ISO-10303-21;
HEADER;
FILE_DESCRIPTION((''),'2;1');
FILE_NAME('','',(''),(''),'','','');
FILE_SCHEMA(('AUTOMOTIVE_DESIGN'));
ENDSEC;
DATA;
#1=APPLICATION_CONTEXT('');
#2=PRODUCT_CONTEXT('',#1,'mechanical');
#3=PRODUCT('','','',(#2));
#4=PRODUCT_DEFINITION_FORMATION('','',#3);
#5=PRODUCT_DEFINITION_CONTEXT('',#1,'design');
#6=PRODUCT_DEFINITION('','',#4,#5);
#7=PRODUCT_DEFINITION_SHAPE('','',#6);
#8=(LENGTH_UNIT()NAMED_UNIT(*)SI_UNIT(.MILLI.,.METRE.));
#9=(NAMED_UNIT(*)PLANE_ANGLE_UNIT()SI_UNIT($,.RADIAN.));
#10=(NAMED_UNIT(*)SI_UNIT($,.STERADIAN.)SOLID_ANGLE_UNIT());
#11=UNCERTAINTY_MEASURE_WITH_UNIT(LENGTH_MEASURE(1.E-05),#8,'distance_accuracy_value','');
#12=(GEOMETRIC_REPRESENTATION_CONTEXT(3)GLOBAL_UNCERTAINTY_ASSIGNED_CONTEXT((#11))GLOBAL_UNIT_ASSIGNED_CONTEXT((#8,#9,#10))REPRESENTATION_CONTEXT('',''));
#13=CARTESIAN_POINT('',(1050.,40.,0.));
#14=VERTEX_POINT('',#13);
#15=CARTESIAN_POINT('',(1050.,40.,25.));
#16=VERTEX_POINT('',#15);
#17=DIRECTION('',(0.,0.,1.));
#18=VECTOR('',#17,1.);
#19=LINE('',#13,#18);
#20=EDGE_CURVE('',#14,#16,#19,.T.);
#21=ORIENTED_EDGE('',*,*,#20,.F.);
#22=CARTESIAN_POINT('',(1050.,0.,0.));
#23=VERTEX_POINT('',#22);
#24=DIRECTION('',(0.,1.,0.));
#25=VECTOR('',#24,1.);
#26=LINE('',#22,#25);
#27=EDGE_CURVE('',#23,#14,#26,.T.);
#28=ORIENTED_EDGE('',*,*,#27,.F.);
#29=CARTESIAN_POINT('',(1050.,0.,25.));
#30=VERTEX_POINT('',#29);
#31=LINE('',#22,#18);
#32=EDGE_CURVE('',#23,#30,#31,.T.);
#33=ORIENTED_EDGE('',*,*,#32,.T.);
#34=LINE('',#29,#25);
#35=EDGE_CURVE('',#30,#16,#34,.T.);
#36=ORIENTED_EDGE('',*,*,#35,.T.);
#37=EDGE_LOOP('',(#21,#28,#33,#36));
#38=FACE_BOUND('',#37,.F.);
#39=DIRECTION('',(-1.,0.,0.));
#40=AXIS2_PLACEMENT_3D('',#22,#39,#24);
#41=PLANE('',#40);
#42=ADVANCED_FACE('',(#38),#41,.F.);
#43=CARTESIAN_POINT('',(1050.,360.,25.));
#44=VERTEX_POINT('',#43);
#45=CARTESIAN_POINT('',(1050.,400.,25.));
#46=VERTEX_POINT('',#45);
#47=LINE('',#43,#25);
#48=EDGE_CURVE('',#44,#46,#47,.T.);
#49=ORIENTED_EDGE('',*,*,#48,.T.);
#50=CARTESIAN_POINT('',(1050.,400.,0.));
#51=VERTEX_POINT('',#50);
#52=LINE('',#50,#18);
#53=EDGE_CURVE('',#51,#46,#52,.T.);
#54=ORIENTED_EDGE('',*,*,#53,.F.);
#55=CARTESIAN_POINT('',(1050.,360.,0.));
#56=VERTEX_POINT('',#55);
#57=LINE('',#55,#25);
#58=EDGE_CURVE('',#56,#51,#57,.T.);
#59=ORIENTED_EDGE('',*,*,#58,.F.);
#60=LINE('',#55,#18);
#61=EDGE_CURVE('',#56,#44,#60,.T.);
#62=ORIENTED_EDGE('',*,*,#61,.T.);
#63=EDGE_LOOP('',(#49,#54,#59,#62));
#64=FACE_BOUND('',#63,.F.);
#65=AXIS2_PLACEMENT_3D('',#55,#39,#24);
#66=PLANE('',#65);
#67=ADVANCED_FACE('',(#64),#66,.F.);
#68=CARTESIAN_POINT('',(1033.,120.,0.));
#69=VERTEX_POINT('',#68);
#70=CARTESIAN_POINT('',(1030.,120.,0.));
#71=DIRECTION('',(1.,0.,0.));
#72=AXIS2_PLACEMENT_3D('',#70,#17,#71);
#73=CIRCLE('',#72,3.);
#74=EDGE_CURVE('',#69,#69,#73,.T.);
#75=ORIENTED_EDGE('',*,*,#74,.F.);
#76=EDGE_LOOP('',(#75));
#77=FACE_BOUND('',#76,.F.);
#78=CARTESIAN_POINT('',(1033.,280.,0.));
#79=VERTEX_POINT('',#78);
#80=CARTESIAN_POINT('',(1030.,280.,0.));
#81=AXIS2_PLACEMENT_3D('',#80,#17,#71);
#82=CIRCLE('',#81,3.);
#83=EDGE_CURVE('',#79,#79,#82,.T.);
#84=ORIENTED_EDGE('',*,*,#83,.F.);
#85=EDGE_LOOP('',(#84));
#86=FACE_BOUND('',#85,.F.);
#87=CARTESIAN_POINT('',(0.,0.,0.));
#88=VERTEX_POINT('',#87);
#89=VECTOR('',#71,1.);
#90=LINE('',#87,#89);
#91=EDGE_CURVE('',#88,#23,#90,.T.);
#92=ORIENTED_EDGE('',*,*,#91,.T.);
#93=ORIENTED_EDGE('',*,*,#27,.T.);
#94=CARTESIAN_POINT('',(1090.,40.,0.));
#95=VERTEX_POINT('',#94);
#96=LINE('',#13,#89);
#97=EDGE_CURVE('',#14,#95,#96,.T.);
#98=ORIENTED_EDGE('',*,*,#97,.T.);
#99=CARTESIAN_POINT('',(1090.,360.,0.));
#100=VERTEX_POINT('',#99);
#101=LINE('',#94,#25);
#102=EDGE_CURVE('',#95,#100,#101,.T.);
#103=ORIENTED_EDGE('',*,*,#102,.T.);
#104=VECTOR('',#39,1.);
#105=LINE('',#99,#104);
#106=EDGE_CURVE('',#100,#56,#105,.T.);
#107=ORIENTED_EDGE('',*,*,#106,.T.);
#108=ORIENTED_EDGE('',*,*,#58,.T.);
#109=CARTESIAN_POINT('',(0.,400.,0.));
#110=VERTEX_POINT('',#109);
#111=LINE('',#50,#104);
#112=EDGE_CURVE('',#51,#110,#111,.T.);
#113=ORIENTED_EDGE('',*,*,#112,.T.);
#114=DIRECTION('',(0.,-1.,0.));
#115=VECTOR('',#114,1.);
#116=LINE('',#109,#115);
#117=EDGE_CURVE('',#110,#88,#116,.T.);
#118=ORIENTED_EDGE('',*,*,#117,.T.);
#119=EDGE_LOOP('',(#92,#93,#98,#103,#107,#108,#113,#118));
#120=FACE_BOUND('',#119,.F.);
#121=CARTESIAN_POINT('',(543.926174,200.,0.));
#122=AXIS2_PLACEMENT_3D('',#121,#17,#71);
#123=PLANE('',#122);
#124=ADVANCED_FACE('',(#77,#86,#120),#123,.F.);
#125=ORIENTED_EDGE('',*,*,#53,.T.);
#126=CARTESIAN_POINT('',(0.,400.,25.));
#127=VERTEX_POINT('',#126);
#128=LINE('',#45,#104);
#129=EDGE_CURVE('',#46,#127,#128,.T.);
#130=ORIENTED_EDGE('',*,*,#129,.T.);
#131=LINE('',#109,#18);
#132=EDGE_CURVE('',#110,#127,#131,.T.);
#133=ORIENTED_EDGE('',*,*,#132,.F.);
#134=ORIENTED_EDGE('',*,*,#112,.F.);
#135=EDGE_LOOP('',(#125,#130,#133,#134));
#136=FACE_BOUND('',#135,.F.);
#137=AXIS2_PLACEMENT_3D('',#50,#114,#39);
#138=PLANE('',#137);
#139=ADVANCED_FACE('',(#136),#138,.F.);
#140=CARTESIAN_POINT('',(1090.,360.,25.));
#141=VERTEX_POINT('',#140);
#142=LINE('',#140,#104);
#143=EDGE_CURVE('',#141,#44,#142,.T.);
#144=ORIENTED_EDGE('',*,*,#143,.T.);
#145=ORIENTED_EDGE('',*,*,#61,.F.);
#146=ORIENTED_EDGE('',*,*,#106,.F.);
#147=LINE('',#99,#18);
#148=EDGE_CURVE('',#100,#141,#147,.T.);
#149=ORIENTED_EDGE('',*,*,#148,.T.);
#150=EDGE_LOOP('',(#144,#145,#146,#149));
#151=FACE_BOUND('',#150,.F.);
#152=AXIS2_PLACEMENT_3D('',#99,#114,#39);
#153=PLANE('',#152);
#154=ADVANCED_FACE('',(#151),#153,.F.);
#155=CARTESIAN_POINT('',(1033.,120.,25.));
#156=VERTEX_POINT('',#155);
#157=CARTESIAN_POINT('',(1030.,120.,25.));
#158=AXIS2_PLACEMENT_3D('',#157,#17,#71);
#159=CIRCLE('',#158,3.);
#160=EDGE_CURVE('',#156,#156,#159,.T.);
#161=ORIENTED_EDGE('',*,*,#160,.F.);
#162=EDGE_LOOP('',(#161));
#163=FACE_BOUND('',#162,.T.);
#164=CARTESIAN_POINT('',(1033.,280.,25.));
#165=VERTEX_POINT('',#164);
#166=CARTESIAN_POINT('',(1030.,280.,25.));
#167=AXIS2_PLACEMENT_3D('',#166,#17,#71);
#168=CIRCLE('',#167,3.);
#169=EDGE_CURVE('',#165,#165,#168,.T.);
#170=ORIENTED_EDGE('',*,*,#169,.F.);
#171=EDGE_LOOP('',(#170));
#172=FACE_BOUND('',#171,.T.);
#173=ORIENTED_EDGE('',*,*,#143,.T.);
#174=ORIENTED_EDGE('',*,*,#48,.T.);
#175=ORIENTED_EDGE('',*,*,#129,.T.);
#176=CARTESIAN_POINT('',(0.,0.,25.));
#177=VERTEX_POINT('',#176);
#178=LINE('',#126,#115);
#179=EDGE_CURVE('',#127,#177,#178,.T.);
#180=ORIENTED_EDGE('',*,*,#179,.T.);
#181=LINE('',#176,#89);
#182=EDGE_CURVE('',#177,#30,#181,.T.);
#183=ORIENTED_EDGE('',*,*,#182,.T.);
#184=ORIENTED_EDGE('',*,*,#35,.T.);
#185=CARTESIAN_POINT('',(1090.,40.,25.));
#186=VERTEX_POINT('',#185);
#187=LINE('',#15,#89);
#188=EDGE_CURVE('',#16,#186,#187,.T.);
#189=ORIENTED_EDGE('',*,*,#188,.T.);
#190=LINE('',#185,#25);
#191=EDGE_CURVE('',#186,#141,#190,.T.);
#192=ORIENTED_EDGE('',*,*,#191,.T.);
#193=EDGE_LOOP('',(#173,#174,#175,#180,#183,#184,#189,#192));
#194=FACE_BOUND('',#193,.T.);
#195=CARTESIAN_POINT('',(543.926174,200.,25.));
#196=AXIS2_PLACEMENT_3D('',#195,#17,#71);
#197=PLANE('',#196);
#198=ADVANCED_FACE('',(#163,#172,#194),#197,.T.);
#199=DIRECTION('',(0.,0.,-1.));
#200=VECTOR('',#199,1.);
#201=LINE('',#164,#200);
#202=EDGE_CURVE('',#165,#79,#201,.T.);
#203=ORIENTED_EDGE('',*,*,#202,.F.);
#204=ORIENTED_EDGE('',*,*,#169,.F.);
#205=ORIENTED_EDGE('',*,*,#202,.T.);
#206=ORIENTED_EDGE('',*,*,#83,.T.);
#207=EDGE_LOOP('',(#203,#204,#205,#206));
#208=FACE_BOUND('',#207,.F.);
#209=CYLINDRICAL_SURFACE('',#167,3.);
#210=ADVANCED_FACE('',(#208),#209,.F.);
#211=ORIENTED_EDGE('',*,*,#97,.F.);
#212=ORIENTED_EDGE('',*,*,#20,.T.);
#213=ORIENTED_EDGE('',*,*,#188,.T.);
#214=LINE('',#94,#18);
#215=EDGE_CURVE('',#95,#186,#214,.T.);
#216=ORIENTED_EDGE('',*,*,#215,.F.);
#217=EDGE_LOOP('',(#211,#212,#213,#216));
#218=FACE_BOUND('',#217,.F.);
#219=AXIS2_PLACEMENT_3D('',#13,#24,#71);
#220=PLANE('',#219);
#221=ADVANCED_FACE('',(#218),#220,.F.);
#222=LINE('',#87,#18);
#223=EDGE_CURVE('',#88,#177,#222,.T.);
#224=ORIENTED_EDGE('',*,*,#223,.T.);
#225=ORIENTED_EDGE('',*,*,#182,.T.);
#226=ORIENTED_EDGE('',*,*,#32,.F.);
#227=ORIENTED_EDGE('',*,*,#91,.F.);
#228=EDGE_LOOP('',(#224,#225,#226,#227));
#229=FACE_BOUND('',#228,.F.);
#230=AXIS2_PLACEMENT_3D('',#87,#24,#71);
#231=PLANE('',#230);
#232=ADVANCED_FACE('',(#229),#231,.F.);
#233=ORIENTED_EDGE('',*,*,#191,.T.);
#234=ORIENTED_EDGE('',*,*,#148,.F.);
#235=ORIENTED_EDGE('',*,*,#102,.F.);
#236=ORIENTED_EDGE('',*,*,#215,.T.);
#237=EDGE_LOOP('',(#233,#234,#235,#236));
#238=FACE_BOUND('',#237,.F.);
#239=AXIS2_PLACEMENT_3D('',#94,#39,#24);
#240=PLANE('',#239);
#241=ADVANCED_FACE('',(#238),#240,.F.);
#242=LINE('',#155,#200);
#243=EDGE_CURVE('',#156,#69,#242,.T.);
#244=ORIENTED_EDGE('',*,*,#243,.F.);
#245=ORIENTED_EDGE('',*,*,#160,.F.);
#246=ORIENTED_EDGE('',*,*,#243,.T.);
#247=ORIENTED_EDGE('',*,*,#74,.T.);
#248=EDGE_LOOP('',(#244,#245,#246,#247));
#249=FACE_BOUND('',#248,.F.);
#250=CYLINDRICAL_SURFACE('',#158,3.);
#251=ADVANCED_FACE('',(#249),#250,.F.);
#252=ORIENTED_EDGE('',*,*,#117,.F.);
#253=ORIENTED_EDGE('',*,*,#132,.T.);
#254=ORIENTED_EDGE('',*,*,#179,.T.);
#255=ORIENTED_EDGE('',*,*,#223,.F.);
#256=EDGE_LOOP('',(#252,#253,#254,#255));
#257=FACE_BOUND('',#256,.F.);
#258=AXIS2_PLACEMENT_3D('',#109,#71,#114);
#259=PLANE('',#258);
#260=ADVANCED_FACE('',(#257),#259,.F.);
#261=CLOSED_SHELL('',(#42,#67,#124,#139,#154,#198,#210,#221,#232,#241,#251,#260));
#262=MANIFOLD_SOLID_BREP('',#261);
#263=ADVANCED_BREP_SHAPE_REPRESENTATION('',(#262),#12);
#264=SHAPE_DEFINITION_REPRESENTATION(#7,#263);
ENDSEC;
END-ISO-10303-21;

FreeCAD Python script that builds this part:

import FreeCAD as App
import Part
import Sketcher
from FreeCAD import Vector
Q = App.Units.Quantity

doc = App.newDocument("Part")
body = doc.addObject("PartDesign::Body", "Body")

# Sketch on XY plane
sketch1 = body.newObject("Sketcher::SketchObject", "Sketch")
sketch1.AttachmentSupport = (doc.getObject("XY_Plane"), [""])
sketch1.MapMode = "FlatFace"
sketch1.addGeometry(Part.LineSegment(Vector(0, 400, 0), Vector(0, 0, 0)), False)
sketch1.addGeometry(Part.LineSegment(Vector(0, 0, 0), Vector(1050, 0, 0)), False)
sketch1.addGeometry(Part.LineSegment(Vector(1050, 0, 0), Vector(1050, 40, 0)), False)
sketch1.addGeometry(Part.LineSegment(Vector(1050, 40, 0), Vector(1090, 40, 0)), False)
sketch1.addGeometry(Part.LineSegment(Vector(1090, 40, 0), Vector(1090, 360, 0)), False)
sketch1.addGeometry(Part.LineSegment(Vector(1090, 360, 0), Vector(1050, 360, 0)), False)
sketch1.addGeometry(Part.LineSegment(Vector(1050, 360, 0), Vector(1050, 400, 0)), False)
sketch1.addGeometry(Part.LineSegment(Vector(1050, 400, 0), Vector(0, 400, 0)), False)
sketch1.addConstraint(Sketcher.Constraint("Coincident", 0, 2, 1, 1))
sketch1.addConstraint(Sketcher.Constraint("Coincident", 1, 2, 2, 1))
sketch1.addConstraint(Sketcher.Constraint("Coincident", 2, 2, 3, 1))
sketch1.addConstraint(Sketcher.Constraint("Coincident", 3, 2, 4, 1))
sketch1.addConstraint(Sketcher.Constraint("Coincident", 4, 2, 5, 1))
sketch1.addConstraint(Sketcher.Constraint("Coincident", 5, 2, 6, 1))
sketch1.addConstraint(Sketcher.Constraint("Coincident", 6, 2, 7, 1))
sketch1.addConstraint(Sketcher.Constraint("Coincident", 7, 2, 0, 1))
sketch1.addConstraint(Sketcher.Constraint("Vertical", 0))
sketch1.addConstraint(Sketcher.Constraint("Horizontal", 1))
sketch1.addConstraint(Sketcher.Constraint("Vertical", 2))
sketch1.addConstraint(Sketcher.Constraint("Horizontal", 3))
sketch1.addConstraint(Sketcher.Constraint("Vertical", 4))
sketch1.addConstraint(Sketcher.Constraint("Horizontal", 5))
sketch1.addConstraint(Sketcher.Constraint("Vertical", 6))
sketch1.addConstraint(Sketcher.Constraint("Horizontal", 7))
sketch1.addConstraint(Sketcher.Constraint("Coincident", 0, 2, -1, 1))
sketch1.addConstraint(Sketcher.Constraint("Vertical", 2, 2, 5, 2))
sketch1.addConstraint(Sketcher.Constraint("Equal", 5, 2))
sketch1.addConstraint(Sketcher.Constraint("Equal", 2, 6))
sketch1.addConstraint(Sketcher.Constraint("DistanceX", 1, 1, 1, 2, Q("1050 mm")))
sketch1.addConstraint(Sketcher.Constraint("DistanceX", 3, 1, 3, 2, Q("40 mm")))
sketch1.addConstraint(Sketcher.Constraint("DistanceY", 0, 2, 0, 1, Q("400 mm")))
pad1 = body.newObject("PartDesign::Pad", "Pad")
pad1.Profile = sketch1
pad1.Length = 25

# Sketch on XY plane
sketch2 = body.newObject("Sketcher::SketchObject", "Sketch001")
sketch2.AttachmentSupport = (doc.getObject("XY_Plane"), [""])
sketch2.MapMode = "FlatFace"
sketch2.AttachmentOffset = App.Placement(Vector(0, 0, 25), App.Rotation())
sketch2.addGeometry(Part.Circle(Vector(1030, 120, 0), Vector(0, 0, 1), 3), False)
sketch2.addGeometry(Part.Circle(Vector(1030, 280, 0), Vector(0, 0, 1), 3), False)
sketch2.addConstraint(Sketcher.Constraint("Equal", 0, 1))
sketch2.addConstraint(Sketcher.Constraint("Vertical", 0, 3, 1, 3))
sketch2.addConstraint(Sketcher.Constraint("Diameter", 0, Q("6 mm")))
sketch2.addConstraint(Sketcher.Constraint("DistanceX", -1, 1, 0, 3, Q("1030 mm")))
sketch2.addConstraint(Sketcher.Constraint("DistanceY", -1, 1, 0, 3, Q("120 mm")))
sketch2.addConstraint(Sketcher.Constraint("DistanceY", -1, 1, 1, 3, Q("280 mm")))
pocket1 = body.newObject("PartDesign::Pocket", "Pocket")
pocket1.Profile = sketch2
pocket1.Type = "ThroughAll"

doc.recompute()
